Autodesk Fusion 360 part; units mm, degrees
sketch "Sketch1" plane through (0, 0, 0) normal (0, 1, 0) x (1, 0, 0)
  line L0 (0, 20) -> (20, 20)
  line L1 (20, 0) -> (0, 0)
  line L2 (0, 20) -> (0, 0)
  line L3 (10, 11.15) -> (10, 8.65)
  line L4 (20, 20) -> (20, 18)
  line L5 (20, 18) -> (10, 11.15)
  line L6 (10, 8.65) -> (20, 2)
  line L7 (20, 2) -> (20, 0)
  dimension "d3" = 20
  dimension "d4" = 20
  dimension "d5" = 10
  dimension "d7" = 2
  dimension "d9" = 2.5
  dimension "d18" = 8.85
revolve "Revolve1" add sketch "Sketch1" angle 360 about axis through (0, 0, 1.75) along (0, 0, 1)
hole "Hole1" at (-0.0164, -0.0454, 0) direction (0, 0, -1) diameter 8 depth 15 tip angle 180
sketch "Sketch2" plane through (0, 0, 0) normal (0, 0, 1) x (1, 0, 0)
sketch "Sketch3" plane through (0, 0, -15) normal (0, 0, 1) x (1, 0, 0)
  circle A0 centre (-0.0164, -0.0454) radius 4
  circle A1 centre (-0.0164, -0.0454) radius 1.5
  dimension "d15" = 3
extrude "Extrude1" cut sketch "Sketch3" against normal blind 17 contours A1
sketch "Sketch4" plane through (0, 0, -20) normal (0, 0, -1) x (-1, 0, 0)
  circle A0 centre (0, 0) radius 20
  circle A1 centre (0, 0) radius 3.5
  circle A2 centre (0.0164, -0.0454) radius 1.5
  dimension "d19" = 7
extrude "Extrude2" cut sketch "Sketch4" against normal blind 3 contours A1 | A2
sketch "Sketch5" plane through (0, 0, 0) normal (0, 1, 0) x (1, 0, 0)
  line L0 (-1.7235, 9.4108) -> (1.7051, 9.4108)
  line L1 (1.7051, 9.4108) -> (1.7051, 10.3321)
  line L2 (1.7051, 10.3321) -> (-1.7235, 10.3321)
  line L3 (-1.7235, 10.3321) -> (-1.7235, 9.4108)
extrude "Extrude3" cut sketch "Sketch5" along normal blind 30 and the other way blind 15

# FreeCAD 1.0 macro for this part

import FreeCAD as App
import Part
import Sketcher

V = App.Vector


def add_polygon(sketch, points):
    """Adds a closed chain of lines whose ends are joined by coincident constraints."""
    first, n = sketch.GeometryCount, len(points)
    for a, b in zip(points, points[1:] + points[:1]):
        sketch.addGeometry(Part.LineSegment(App.Vector(*a, 0), App.Vector(*b, 0)), False)
    for i in range(n):
        sketch.addConstraint(Sketcher.Constraint("Coincident", first + i, 2, first + (i + 1) % n, 1))

doc = App.newDocument("Part")
body = doc.addObject("PartDesign::Body", "Body")

sketch1 = body.newObject("Sketcher::SketchObject", "Sketch")
sketch1.AttachmentSupport = (doc.getObject("XZ_Plane"), [""])
sketch1.MapMode = "FlatFace"
add_polygon(sketch1, [(20, -20), (0, -20), (0, 0), (20, 0), (20, -2), (10, -8.65), (10, -11.15), (20, -18)])
sketch1.addConstraint([
    Sketcher.Constraint("Horizontal", 0),
    Sketcher.Constraint("Vertical", 1),
    Sketcher.Constraint("Horizontal", 2),
    Sketcher.Constraint("Vertical", 3),
    Sketcher.Constraint("Vertical", 5),
    Sketcher.Constraint("Vertical", 7),
    Sketcher.Constraint("Coincident", 1, 2, -1, 1),
    Sketcher.Constraint("Vertical", 3, 2, 6, 2),
    Sketcher.Constraint("Equal", 2, 1),
    Sketcher.Constraint("Equal", 3, 7),
    Sketcher.Constraint("DistanceX", 0, 2, 0, 1, 20.0),
    Sketcher.Constraint("DistanceY", 3, 2, 3, 1, 2.0),
    Sketcher.Constraint("DistanceY", 5, 2, 5, 1, 2.5),
    Sketcher.Constraint("DistanceX", -1, 1, 4, 2, 10.0),
    Sketcher.Constraint("DistanceY", 0, 2, 5, 2, 8.85),
])
revolution = body.newObject("PartDesign::Revolution", "Revolution")
revolution.Profile = sketch1
revolution.ReferenceAxis = (sketch1, ["V_Axis"])
revolution.Angle = 360

sketch2 = body.newObject("Sketcher::SketchObject", "Sketch001")
sketch2.AttachmentSupport = (doc.getObject("XY_Plane"), [""])
sketch2.MapMode = "FlatFace"
sketch2.addGeometry(Part.Circle(V(-0.0164, -0.0454, 0), V(0, 0, 1), 4), False)
sketch2.addConstraint([
    Sketcher.Constraint("Diameter", 0, 8.0),
    Sketcher.Constraint("DistanceX", 0, 3, -1, 1, 0.0164),
    Sketcher.Constraint("DistanceY", 0, 3, -1, 1, 0.0454),
])
doc.recompute()
hole = body.newObject("PartDesign::Hole", "Hole")
hole.Profile = sketch2
hole.ThreadType = "None"
hole.Diameter = 8
hole.DepthType = "Dimension"
hole.Depth = 15
hole.DrillPoint = "Flat"

sketch3 = body.newObject("Sketcher::SketchObject", "Sketch002")
sketch3.AttachmentSupport = (doc.getObject("XY_Plane"), [""])
sketch3.MapMode = "FlatFace"
sketch3.AttachmentOffset = App.Placement(V(0, 0, -15), App.Rotation())
sketch3.addGeometry(Part.Circle(V(-0.0164, -0.0454, 0), V(0, 0, 1), 1.5), False)
sketch3.addConstraint([
    Sketcher.Constraint("Diameter", 0, 3.0),
    Sketcher.Constraint("DistanceX", 0, 3, -1, 1, 0.0164),
    Sketcher.Constraint("DistanceY", 0, 3, -1, 1, 0.0454),
])
pocket1 = body.newObject("PartDesign::Pocket", "Pocket")
pocket1.Profile = sketch3
pocket1.Length = 17

sketch4 = body.newObject("Sketcher::SketchObject", "Sketch003")
sketch4.AttachmentSupport = (doc.getObject("XY_Plane"), [""])
sketch4.MapMode = "FlatFace"
sketch4.AttachmentOffset = App.Placement(V(0, 0, -20), App.Rotation())
sketch4.addGeometry(Part.Circle(V(0, 0, 0), V(0, 0, 1), 3.5), False)
sketch4.addConstraint([
    Sketcher.Constraint("Coincident", 0, 3, -1, 1),
    Sketcher.Constraint("Diameter", 0, 7.0),
])
pocket2 = body.newObject("PartDesign::Pocket", "Pocket001")
pocket2.Profile = sketch4
pocket2.Length = 3
pocket2.Reversed = True

sketch5 = body.newObject("Sketcher::SketchObject", "Sketch004")
sketch5.AttachmentSupport = (doc.getObject("XZ_Plane"), [""])
sketch5.MapMode = "FlatFace"
add_polygon(sketch5, [(-1.7235, -10.3321), (-1.7235, -9.4108), (1.7051, -9.4108), (1.7051, -10.3321)])
sketch5.addConstraint([
    Sketcher.Constraint("Vertical", 0),
    Sketcher.Constraint("Horizontal", 1),
    Sketcher.Constraint("Vertical", 2),
    Sketcher.Constraint("Horizontal", 3),
    Sketcher.Constraint("DistanceX", 1, 1, 1, 2, 3.4286),
    Sketcher.Constraint("DistanceY", 0, 1, 0, 2, 0.9213),
    Sketcher.Constraint("DistanceX", -1, 1, 1, 2, 1.705),
    Sketcher.Constraint("DistanceY", 2, 2, -1, 1, 10.332),
])
pocket3 = body.newObject("PartDesign::Pocket", "Pocket002")
pocket3.Profile = sketch5
pocket3.Type = "ThroughAll"
pocket3.Midplane = True

doc.recompute()
